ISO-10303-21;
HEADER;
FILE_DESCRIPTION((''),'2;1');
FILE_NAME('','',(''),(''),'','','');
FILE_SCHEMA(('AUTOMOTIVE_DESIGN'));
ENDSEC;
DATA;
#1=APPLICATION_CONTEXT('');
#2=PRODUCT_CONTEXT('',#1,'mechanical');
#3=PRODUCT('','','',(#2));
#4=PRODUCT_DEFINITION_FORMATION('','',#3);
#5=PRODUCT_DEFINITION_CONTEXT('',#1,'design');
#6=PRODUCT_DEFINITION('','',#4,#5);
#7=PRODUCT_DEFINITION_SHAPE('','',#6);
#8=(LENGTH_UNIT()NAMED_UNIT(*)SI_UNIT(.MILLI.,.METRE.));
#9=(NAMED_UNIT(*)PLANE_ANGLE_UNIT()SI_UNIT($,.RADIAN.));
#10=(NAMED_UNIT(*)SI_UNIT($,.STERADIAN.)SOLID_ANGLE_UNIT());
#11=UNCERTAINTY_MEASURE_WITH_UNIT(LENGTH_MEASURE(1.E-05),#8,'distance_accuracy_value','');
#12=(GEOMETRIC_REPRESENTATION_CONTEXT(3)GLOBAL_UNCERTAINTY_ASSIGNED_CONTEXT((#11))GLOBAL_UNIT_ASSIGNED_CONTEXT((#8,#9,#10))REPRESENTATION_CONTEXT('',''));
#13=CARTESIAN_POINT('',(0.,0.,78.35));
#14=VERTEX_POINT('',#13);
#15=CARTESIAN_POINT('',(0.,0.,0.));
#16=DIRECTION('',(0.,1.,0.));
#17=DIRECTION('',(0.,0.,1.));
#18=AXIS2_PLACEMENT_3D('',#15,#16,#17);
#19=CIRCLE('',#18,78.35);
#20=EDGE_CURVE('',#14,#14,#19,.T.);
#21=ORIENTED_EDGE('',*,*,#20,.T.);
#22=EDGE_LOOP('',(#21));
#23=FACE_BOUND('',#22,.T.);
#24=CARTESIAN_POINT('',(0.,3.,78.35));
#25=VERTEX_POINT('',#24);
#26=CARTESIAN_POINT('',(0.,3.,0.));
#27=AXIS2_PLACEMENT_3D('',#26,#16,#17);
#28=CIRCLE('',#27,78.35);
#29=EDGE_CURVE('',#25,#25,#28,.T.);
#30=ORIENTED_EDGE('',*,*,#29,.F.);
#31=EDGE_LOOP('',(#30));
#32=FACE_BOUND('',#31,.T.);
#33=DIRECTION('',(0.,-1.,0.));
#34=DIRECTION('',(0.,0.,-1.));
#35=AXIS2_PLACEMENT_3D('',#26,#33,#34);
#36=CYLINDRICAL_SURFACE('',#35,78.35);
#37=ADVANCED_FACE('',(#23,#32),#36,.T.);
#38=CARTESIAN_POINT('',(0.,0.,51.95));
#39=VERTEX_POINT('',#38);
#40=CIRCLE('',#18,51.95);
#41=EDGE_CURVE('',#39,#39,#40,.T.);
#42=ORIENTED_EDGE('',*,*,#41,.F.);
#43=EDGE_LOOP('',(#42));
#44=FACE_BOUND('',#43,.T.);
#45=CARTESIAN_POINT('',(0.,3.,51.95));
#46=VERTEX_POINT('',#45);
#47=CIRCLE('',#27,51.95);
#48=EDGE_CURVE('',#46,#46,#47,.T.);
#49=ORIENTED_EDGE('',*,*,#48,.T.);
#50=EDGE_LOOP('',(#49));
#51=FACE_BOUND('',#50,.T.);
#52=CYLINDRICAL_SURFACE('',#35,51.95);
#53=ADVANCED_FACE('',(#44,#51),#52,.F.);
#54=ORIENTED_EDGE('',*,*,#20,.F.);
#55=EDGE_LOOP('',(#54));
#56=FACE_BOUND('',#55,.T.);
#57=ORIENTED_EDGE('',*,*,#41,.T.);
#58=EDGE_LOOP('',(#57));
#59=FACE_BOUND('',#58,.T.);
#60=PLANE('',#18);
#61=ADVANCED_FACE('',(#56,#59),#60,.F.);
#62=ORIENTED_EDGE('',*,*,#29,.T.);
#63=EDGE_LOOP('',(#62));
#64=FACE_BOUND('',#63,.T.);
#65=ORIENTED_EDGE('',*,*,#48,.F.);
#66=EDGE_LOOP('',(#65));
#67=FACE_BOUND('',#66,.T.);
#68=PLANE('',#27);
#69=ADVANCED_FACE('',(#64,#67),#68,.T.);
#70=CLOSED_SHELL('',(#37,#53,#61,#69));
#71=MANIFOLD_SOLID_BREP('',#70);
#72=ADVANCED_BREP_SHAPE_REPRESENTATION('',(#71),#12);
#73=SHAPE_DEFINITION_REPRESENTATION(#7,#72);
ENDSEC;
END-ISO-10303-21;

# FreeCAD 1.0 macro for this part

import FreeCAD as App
import Part
import Sketcher

doc = App.newDocument("Part")
body = doc.addObject("PartDesign::Body", "Body")

# Sketch on XZ plane
sketch1 = doc.addObject("Sketcher::SketchObject", "Sketch")
body.addObject(sketch1)
sketch1.AttachmentSupport = (doc.XZ_Plane, [""])
sketch1.MapMode = "FlatFace"
sketch1.addGeometry(Part.Circle(App.Vector(0, 0, 0), App.Vector(0, 0, 1), 78), False)
sketch1.addGeometry(Part.Circle(App.Vector(0, 0, 0), App.Vector(0, 0, 1), 52), False)
sketch1.addConstraint(Sketcher.Constraint("Coincident", 0, 3, -1, 1))
sketch1.addConstraint(Sketcher.Constraint("Coincident", 1, 3, -1, 1))
sketch1.addConstraint(Sketcher.Constraint("Diameter", 0, 156.7))
sketch1.addConstraint(Sketcher.Constraint("Diameter", 1, 103.9))
pad1 = doc.addObject("PartDesign::Pad", "Pad")
body.addObject(pad1)
pad1.Profile = sketch1
pad1.Length = 3
pad1.Reversed = True

doc.recompute()
